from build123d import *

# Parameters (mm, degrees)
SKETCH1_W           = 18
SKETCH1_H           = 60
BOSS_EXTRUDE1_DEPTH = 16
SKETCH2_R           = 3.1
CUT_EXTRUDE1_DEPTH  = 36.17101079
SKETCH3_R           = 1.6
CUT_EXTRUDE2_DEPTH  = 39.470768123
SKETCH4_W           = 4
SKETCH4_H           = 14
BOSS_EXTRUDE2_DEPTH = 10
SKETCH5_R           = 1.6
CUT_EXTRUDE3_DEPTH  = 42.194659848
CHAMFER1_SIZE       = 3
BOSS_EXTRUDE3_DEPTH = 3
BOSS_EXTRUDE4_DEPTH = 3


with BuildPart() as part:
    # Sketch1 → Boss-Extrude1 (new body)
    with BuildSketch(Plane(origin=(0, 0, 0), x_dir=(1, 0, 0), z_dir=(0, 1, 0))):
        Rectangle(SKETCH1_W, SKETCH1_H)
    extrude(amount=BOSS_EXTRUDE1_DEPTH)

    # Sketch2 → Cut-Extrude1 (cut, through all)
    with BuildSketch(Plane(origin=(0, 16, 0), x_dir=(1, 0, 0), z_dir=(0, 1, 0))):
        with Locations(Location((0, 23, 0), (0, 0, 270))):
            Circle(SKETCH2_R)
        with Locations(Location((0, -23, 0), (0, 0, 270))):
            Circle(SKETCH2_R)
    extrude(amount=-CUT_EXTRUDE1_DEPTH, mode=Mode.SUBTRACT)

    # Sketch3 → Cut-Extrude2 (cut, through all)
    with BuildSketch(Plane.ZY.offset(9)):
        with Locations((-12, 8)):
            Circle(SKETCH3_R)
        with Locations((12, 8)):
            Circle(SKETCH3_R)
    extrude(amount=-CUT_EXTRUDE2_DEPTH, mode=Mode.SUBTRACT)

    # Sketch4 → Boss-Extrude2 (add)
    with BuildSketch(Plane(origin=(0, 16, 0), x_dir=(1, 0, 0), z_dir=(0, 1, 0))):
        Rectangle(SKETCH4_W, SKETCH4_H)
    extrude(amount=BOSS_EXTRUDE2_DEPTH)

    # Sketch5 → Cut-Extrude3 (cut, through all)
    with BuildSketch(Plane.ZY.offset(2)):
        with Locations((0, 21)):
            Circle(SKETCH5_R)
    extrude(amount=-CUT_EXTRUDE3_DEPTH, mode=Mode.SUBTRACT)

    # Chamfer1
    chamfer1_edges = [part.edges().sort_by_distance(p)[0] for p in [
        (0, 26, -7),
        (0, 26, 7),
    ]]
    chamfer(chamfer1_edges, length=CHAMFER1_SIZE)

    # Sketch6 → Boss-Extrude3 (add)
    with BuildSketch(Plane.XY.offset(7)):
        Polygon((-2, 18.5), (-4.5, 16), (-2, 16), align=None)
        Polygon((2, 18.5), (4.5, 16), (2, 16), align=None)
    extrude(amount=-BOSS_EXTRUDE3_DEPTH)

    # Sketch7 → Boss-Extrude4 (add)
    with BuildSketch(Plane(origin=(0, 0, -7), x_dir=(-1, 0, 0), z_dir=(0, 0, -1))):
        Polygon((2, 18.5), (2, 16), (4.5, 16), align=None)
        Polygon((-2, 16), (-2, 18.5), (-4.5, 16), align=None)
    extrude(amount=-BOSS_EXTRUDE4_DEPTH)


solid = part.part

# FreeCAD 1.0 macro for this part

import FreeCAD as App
import Part
import Sketcher


def edges_at(feature, points):
    """Names of the edges that pass closest to the given points."""
    edges = feature.Shape.Edges
    near = lambda p: min(range(len(edges)), key=lambda i: edges[i].distToShape(Part.Vertex(*p))[0])
    return sorted({f"Edge{near(p) + 1}" for p in points})

doc = App.newDocument("Part")
body = doc.addObject("PartDesign::Body", "Body")

# Sketch on XZ plane
sketch1 = body.newObject("Sketcher::SketchObject", "Sketch")
sketch1.AttachmentSupport = (doc.getObject("XZ_Plane"), [""])
sketch1.MapMode = "FlatFace"
sketch1.addGeometry([
    Part.LineSegment(App.Vector(-9, -30, 0), App.Vector(-9, 30, 0)),
    Part.LineSegment(App.Vector(-9, 30, 0), App.Vector(9, 30, 0)),
    Part.LineSegment(App.Vector(9, 30, 0), App.Vector(9, -30, 0)),
    Part.LineSegment(App.Vector(9, -30, 0), App.Vector(-9, -30, 0)),
], False)
sketch1.addConstraint([
    Sketcher.Constraint("Coincident", 0, 2, 1, 1),
    Sketcher.Constraint("Coincident", 1, 2, 2, 1),
    Sketcher.Constraint("Coincident", 2, 2, 3, 1),
    Sketcher.Constraint("Coincident", 3, 2, 0, 1),
    Sketcher.Constraint("Vertical", 0),
    Sketcher.Constraint("Horizontal", 1),
    Sketcher.Constraint("Vertical", 2),
    Sketcher.Constraint("Horizontal", 3),
    Sketcher.Constraint("Symmetric", 0, 2, 2, 2, -1, 1),
    Sketcher.Constraint("DistanceX", 1, 1, 1, 2, 18.0),
    Sketcher.Constraint("DistanceY", 0, 1, 0, 2, 60.0),
])
pad1 = body.newObject("PartDesign::Pad", "Pad")
pad1.Profile = sketch1
pad1.Length = 16
pad1.Reversed = True

# Sketch on XZ plane
sketch2 = body.newObject("Sketcher::SketchObject", "Sketch001")
sketch2.AttachmentSupport = (doc.getObject("XZ_Plane"), [""])
sketch2.MapMode = "FlatFace"
sketch2.AttachmentOffset = App.Placement(App.Vector(0, 0, -16), App.Rotation())
sketch2.addGeometry([
    Part.Circle(App.Vector(0, -23, 0), App.Vector(0, 0, 1), 3.1),
    Part.Circle(App.Vector(0, 23, 0), App.Vector(0, 0, 1), 3.1),
], False)
sketch2.addConstraint([
    Sketcher.Constraint("Equal", 0, 1),
    Sketcher.Constraint("Symmetric", 0, 3, 1, 3, -1, 1),
    Sketcher.Constraint("PointOnObject", 0, 3, -2),
    Sketcher.Constraint("Diameter", 0, 6.2),
    Sketcher.Constraint("DistanceY", 0, 3, -1, 1, 23.0),
])
pocket1 = body.newObject("PartDesign::Pocket", "Pocket")
pocket1.Profile = sketch2
pocket1.Type = "ThroughAll"
pocket1.Reversed = True

# Sketch on YZ plane
sketch3 = body.newObject("Sketcher::SketchObject", "Sketch002")
sketch3.AttachmentSupport = (doc.getObject("YZ_Plane"), [""])
sketch3.MapMode = "FlatFace"
sketch3.AttachmentOffset = App.Placement(App.Vector(0, 0, -9), App.Rotation())
sketch3.addGeometry([
    Part.Circle(App.Vector(8, -12, 0), App.Vector(0, 0, 1), 1.6),
    Part.Circle(App.Vector(8, 12, 0), App.Vector(0, 0, 1), 1.6),
], False)
sketch3.addConstraint([
    Sketcher.Constraint("Equal", 0, 1),
    Sketcher.Constraint("Symmetric", 0, 3, 1, 3, -1),
    Sketcher.Constraint("Diameter", 0, 3.2),
    Sketcher.Constraint("DistanceX", -1, 1, 0, 3, 8.0),
    Sketcher.Constraint("DistanceY", 0, 3, -1, 1, 12.0),
])
pocket2 = body.newObject("PartDesign::Pocket", "Pocket001")
pocket2.Profile = sketch3
pocket2.Type = "ThroughAll"
pocket2.Reversed = True

# Sketch on XZ plane
sketch4 = body.newObject("Sketcher::SketchObject", "Sketch003")
sketch4.AttachmentSupport = (doc.getObject("XZ_Plane"), [""])
sketch4.MapMode = "FlatFace"
sketch4.AttachmentOffset = App.Placement(App.Vector(0, 0, -16), App.Rotation())
sketch4.addGeometry([
    Part.LineSegment(App.Vector(-2, -7, 0), App.Vector(-2, 7, 0)),
    Part.LineSegment(App.Vector(-2, 7, 0), App.Vector(2, 7, 0)),
    Part.LineSegment(App.Vector(2, 7, 0), App.Vector(2, -7, 0)),
    Part.LineSegment(App.Vector(2, -7, 0), App.Vector(-2, -7, 0)),
], False)
sketch4.addConstraint([
    Sketcher.Constraint("Coincident", 0, 2, 1, 1),
    Sketcher.Constraint("Coincident", 1, 2, 2, 1),
    Sketcher.Constraint("Coincident", 2, 2, 3, 1),
    Sketcher.Constraint("Coincident", 3, 2, 0, 1),
    Sketcher.Constraint("Vertical", 0),
    Sketcher.Constraint("Horizontal", 1),
    Sketcher.Constraint("Vertical", 2),
    Sketcher.Constraint("Horizontal", 3),
    Sketcher.Constraint("Symmetric", 0, 2, 2, 2, -1, 1),
    Sketcher.Constraint("DistanceX", 1, 1, 1, 2, 4.0),
    Sketcher.Constraint("DistanceY", 0, 1, 0, 2, 14.0),
])
pad2 = body.newObject("PartDesign::Pad", "Pad001")
pad2.Profile = sketch4
pad2.Length = 10
pad2.Reversed = True

# Sketch on YZ plane
sketch5 = body.newObject("Sketcher::SketchObject", "Sketch004")
sketch5.AttachmentSupport = (doc.getObject("YZ_Plane"), [""])
sketch5.MapMode = "FlatFace"
sketch5.AttachmentOffset = App.Placement(App.Vector(0, 0, -2), App.Rotation())
sketch5.addGeometry(Part.Circle(App.Vector(21, 0, 0), App.Vector(0, 0, 1), 1.6), False)
sketch5.addConstraint([
    Sketcher.Constraint("PointOnObject", 0, 3, -1),
    Sketcher.Constraint("Diameter", 0, 3.2),
    Sketcher.Constraint("DistanceX", -1, 1, 0, 3, 21.0),
])
pocket3 = body.newObject("PartDesign::Pocket", "Pocket002")
pocket3.Profile = sketch5
pocket3.Type = "ThroughAll"
pocket3.Reversed = True
doc.recompute()

chamfer = body.newObject("PartDesign::Chamfer", "Chamfer")
chamfer.Base = (pocket3, edges_at(pocket3, [(0, 26, -7), (0, 26, 7)]))
chamfer.Size = 3

# Sketch on XY plane
sketch6 = body.newObject("Sketcher::SketchObject", "Sketch005")
sketch6.AttachmentSupport = (doc.getObject("XY_Plane"), [""])
sketch6.MapMode = "FlatFace"
sketch6.AttachmentOffset = App.Placement(App.Vector(0, 0, 7), App.Rotation())
sketch6.addGeometry([
    Part.LineSegment(App.Vector(-2, 18.5, 0), App.Vector(-4.5, 16, 0)),  # 0
    Part.LineSegment(App.Vector(-4.5, 16, 0), App.Vector(-2, 16, 0)),  # 1
    Part.LineSegment(App.Vector(-2, 16, 0), App.Vector(-2, 18.5, 0)),  # 2
    Part.LineSegment(App.Vector(4.5, 16, 0), App.Vector(2, 18.5, 0)),  # 3
    Part.LineSegment(App.Vector(2, 18.5, 0), App.Vector(2, 16, 0)),  # 4
    Part.LineSegment(App.Vector(2, 16, 0), App.Vector(4.5, 16, 0)),  # 5
], False)
sketch6.addConstraint([
    Sketcher.Constraint("Coincident", 0, 2, 1, 1),
    Sketcher.Constraint("Coincident", 1, 2, 2, 1),
    Sketcher.Constraint("Coincident", 2, 2, 0, 1),
    Sketcher.Constraint("Coincident", 3, 2, 4, 1),
    Sketcher.Constraint("Coincident", 4, 2, 5, 1),
    Sketcher.Constraint("Coincident", 5, 2, 3, 1),
    Sketcher.Constraint("Horizontal", 1),
    Sketcher.Constraint("Vertical", 2),
    Sketcher.Constraint("Vertical", 4),
    Sketcher.Constraint("Horizontal", 5),
    Sketcher.Constraint("Symmetric", 2, 2, 3, 2, -2),
    Sketcher.Constraint("Symmetric", 0, 2, 5, 2, -2),
    Sketcher.Constraint("Perpendicular", 0, 3),
    Sketcher.Constraint("DistanceX", 1, 1, 1, 2, 2.5),
    Sketcher.Constraint("DistanceY", -1, 1, 0, 2, 16.0),
    Sketcher.Constraint("DistanceX", 1, 2, -1, 1, 2.0),
])
pad3 = body.newObject("PartDesign::Pad", "Pad002")
pad3.Profile = sketch6
pad3.Length = 3
pad3.Reversed = True

# Sketch on XY plane
sketch7 = body.newObject("Sketcher::SketchObject", "Sketch006")
sketch7.AttachmentSupport = (doc.getObject("XY_Plane"), [""])
sketch7.MapMode = "FlatFace"
sketch7.AttachmentOffset = App.Placement(App.Vector(0, 0, -7), App.Rotation())
sketch7.addGeometry([
    Part.LineSegment(App.Vector(-2, 18.5, 0), App.Vector(-2, 16, 0)),  # 0
    Part.LineSegment(App.Vector(-2, 16, 0), App.Vector(-4.5, 16, 0)),  # 1
    Part.LineSegment(App.Vector(-4.5, 16, 0), App.Vector(-2, 18.5, 0)),  # 2
    Part.LineSegment(App.Vector(2, 16, 0), App.Vector(2, 18.5, 0)),  # 3
    Part.LineSegment(App.Vector(2, 18.5, 0), App.Vector(4.5, 16, 0)),  # 4
    Part.LineSegment(App.Vector(4.5, 16, 0), App.Vector(2, 16, 0)),  # 5
], False)
sketch7.addConstraint([
    Sketcher.Constraint("Coincident", 0, 2, 1, 1),
    Sketcher.Constraint("Coincident", 1, 2, 2, 1),
    Sketcher.Constraint("Coincident", 2, 2, 0, 1),
    Sketcher.Constraint("Coincident", 3, 2, 4, 1),
    Sketcher.Constraint("Coincident", 4, 2, 5, 1),
    Sketcher.Constraint("Coincident", 5, 2, 3, 1),
    Sketcher.Constraint("Vertical", 0),
    Sketcher.Constraint("Horizontal", 1),
    Sketcher.Constraint("Vertical", 3),
    Sketcher.Constraint("Horizontal", 5),
    Sketcher.Constraint("Symmetric", 2, 2, 3, 2, -2),
    Sketcher.Constraint("Symmetric", 1, 2, 4, 2, -2),
    Sketcher.Constraint("Perpendicular", 2, 4),
    Sketcher.Constraint("DistanceX", 1, 2, 1, 1, 2.5),
    Sketcher.Constraint("DistanceX", 0, 2, -1, 1, 2.0),
    Sketcher.Constraint("DistanceY", -1, 1, 0, 2, 16.0),
])
pad4 = body.newObject("PartDesign::Pad", "Pad003")
pad4.Profile = sketch7
pad4.Length = 3

doc.recompute()
